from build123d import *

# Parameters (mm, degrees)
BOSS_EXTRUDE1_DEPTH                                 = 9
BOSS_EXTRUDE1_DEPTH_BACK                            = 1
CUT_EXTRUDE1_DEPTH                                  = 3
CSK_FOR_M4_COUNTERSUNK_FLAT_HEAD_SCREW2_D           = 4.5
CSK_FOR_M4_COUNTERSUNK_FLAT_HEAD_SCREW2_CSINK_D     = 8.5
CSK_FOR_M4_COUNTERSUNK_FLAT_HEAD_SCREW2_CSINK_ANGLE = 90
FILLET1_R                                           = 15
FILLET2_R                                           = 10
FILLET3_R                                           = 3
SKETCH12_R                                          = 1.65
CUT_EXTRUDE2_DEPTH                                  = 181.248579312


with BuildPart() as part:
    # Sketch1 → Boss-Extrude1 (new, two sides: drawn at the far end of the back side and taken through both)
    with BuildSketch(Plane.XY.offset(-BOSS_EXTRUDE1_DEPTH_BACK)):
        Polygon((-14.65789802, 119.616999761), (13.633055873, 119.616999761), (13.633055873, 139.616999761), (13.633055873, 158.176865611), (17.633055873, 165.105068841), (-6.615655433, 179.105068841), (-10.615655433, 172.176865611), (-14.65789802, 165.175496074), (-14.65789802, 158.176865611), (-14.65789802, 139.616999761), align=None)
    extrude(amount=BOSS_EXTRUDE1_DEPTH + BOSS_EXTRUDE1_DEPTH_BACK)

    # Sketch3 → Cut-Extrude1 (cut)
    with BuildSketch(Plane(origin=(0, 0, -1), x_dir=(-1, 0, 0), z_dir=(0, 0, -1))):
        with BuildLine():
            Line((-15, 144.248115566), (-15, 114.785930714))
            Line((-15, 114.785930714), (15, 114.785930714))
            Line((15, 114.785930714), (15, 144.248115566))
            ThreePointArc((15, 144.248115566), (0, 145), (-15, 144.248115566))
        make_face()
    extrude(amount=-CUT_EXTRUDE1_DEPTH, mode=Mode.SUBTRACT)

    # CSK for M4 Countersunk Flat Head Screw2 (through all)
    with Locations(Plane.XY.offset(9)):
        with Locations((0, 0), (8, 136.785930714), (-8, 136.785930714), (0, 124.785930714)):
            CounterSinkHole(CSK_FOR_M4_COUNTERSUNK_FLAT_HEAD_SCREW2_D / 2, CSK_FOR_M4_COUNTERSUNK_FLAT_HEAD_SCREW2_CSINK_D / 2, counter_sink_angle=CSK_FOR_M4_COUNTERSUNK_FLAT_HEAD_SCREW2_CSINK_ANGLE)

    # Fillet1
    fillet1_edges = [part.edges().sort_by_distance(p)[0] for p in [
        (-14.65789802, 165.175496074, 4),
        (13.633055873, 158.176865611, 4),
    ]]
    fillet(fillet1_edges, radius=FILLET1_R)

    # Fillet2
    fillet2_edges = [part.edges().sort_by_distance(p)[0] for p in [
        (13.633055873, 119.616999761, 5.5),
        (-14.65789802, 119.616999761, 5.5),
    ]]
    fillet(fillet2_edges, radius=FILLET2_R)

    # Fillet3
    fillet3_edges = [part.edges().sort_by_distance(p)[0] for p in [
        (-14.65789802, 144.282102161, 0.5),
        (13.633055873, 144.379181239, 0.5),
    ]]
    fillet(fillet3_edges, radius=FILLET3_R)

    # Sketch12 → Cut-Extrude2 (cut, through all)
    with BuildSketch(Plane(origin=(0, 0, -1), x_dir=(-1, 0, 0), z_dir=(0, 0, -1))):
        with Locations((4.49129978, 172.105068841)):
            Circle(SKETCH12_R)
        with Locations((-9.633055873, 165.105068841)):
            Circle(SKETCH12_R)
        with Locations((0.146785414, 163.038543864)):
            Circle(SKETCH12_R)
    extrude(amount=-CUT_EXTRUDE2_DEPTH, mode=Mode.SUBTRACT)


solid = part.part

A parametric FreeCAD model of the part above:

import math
import FreeCAD as App
import Part
import Sketcher

V = App.Vector
Q = App.Units.Quantity


def edges_at(feature, points):
    """Names of the edges that pass closest to the given points."""
    edges = feature.Shape.Edges
    near = lambda p: min(range(len(edges)), key=lambda i: edges[i].distToShape(Part.Vertex(*p))[0])
    return sorted({f"Edge{near(p) + 1}" for p in points})


def add_polygon(sketch, points):
    """Adds a closed chain of lines whose ends are joined by coincident constraints."""
    first, n = sketch.GeometryCount, len(points)
    for a, b in zip(points, points[1:] + points[:1]):
        sketch.addGeometry(Part.LineSegment(App.Vector(*a, 0), App.Vector(*b, 0)), False)
    for i in range(n):
        sketch.addConstraint(Sketcher.Constraint("Coincident", first + i, 2, first + (i + 1) % n, 1))

doc = App.newDocument("Part")
body = doc.addObject("PartDesign::Body", "Body")

# Sketch on XY plane
sketch1 = body.newObject("Sketcher::SketchObject", "Sketch")
sketch1.AttachmentSupport = (doc.getObject("XY_Plane"), [""])
sketch1.MapMode = "FlatFace"
add_polygon(sketch1, [(-14.657898, 119.617), (13.633056, 119.617), (13.633056, 158.176866), (17.633056, 165.105069), (-6.615655, 179.105069), (-10.615655, 172.176866), (-14.657898, 165.175496)])  # lines 0-6
sketch1.addConstraint(Sketcher.Constraint("Horizontal", 0))
sketch1.addConstraint(Sketcher.Constraint("Vertical", 1))
sketch1.addConstraint(Sketcher.Constraint("Vertical", 6))
sketch1.addConstraint(Sketcher.Constraint("Perpendicular", 2, 3))
sketch1.addConstraint(Sketcher.Constraint("Perpendicular", 3, 4))
sketch1.addConstraint(Sketcher.Constraint("Parallel", 4, 5))
sketch1.addConstraint(Sketcher.Constraint("Equal", 2, 4))
sketch1.addConstraint(Sketcher.Constraint("Angle", 2, Q("60 deg")))
sketch1.addConstraint(Sketcher.Constraint("Distance", 2, Q("8 mm")))
sketch1.addConstraint(Sketcher.Constraint("Distance", 3, Q("28 mm")))
sketch1.addConstraint(Sketcher.Constraint("DistanceY", -1, 1, 0, 2, Q("119.617 mm")))
sketch1.addConstraint(Sketcher.Constraint("DistanceX", 5, 2, -1, 1, Q("14.657898 mm")))
sketch1.addConstraint(Sketcher.Constraint("DistanceX", 0, 1, 0, 2, Q("28.290954 mm")))
sketch1.addConstraint(Sketcher.Constraint("DistanceY", 1, 1, 1, 2, Q("38.559866 mm")))
pad1 = body.newObject("PartDesign::Pad", "Pad")
pad1.Profile = sketch1
pad1.Type = "TwoLengths"
pad1.Length = 9
pad1.Length2 = 1

# Sketch on XY plane
sketch2 = body.newObject("Sketcher::SketchObject", "Sketch001")
sketch2.AttachmentSupport = (doc.getObject("XY_Plane"), [""])
sketch2.MapMode = "FlatFace"
sketch2.AttachmentOffset = App.Placement(V(0, 0, -1), App.Rotation())
sketch2.addGeometry(Part.LineSegment(V(15, 144.248116, 0), V(15, 114.785931, 0)), False)
sketch2.addGeometry(Part.LineSegment(V(15, 114.785931, 0), V(-15, 114.785931, 0)), False)
sketch2.addGeometry(Part.LineSegment(V(-15, 114.785931, 0), V(-15, 144.248116, 0)), False)
sketch2.addGeometry(Part.ArcOfCircle(Part.Circle(V(0, -5, 0), V(0, 0, 1), 150), math.radians(84.26083), math.radians(95.73917)), False)
sketch2.addConstraint(Sketcher.Constraint("Coincident", 0, 2, 1, 1))
sketch2.addConstraint(Sketcher.Constraint("Coincident", 1, 2, 2, 1))
sketch2.addConstraint(Sketcher.Constraint("Coincident", 2, 2, 3, 2))
sketch2.addConstraint(Sketcher.Constraint("Coincident", 3, 1, 0, 1))
sketch2.addConstraint(Sketcher.Constraint("Vertical", 0))
sketch2.addConstraint(Sketcher.Constraint("Horizontal", 1))
sketch2.addConstraint(Sketcher.Constraint("Vertical", 2))
sketch2.addConstraint(Sketcher.Constraint("Symmetric", 2, 2, 3, 1, -2))
sketch2.addConstraint(Sketcher.Constraint("Radius", 3, Q("150 mm")))
sketch2.addConstraint(Sketcher.Constraint("DistanceX", 1, 2, 1, 1, Q("30 mm")))
sketch2.addConstraint(Sketcher.Constraint("DistanceY", 3, 3, -1, 1, Q("5 mm")))
sketch2.addConstraint(Sketcher.Constraint("DistanceY", 0, 2, 0, 1, Q("29.462185 mm")))
pocket1 = body.newObject("PartDesign::Pocket", "Pocket")
pocket1.Profile = sketch2
pocket1.Length = 3
pocket1.Reversed = True

# Sketch on XY plane
sketch3 = body.newObject("Sketcher::SketchObject", "Sketch002")
sketch3.AttachmentSupport = (doc.getObject("XY_Plane"), [""])
sketch3.MapMode = "FlatFace"
sketch3.AttachmentOffset = App.Placement(V(0, 0, 9), App.Rotation())
sketch3.addGeometry(Part.Circle(V(0, 0, 0), V(0, 0, 1), 2.25), False)
sketch3.addGeometry(Part.Circle(V(8, 136.785931, 0), V(0, 0, 1), 2.25), False)
sketch3.addGeometry(Part.Circle(V(-8, 136.785931, 0), V(0, 0, 1), 2.25), False)
sketch3.addGeometry(Part.Circle(V(0, 124.785931, 0), V(0, 0, 1), 2.25), False)
sketch3.addConstraint(Sketcher.Constraint("Coincident", 0, 3, -1, 1))
sketch3.addConstraint(Sketcher.Constraint("Equal", 0, 1))
sketch3.addConstraint(Sketcher.Constraint("Equal", 1, 2))
sketch3.addConstraint(Sketcher.Constraint("Equal", 2, 3))
sketch3.addConstraint(Sketcher.Constraint("Symmetric", 1, 3, 2, 3, -2))
sketch3.addConstraint(Sketcher.Constraint("PointOnObject", 3, 3, -2))
sketch3.addConstraint(Sketcher.Constraint("Diameter", 0, Q("4.5 mm")))
sketch3.addConstraint(Sketcher.Constraint("DistanceX", -1, 1, 1, 3, Q("8 mm")))
sketch3.addConstraint(Sketcher.Constraint("DistanceY", 3, 3, 1, 3, Q("12 mm")))
sketch3.addConstraint(Sketcher.Constraint("DistanceY", -1, 1, 1, 3, Q("136.785931 mm")))
doc.recompute()
hole = body.newObject("PartDesign::Hole", "Hole")
hole.Profile = sketch3
hole.ThreadType = "None"
hole.Diameter = 4.5
hole.DepthType = "ThroughAll"
hole.HoleCutType = "Countersink"
hole.HoleCutDiameter = 8.5
hole.HoleCutCountersinkAngle = 90
doc.recompute()

fillet = body.newObject("PartDesign::Fillet", "Fillet")
fillet.Base = (hole, edges_at(hole, [(-14.658, 165.175, 4), (13.633, 158.177, 4)]))
fillet.Radius = 15
doc.recompute()

fillet2 = body.newObject("PartDesign::Fillet", "Fillet001")
fillet2.Base = (fillet, edges_at(fillet, [(13.633, 119.617, 5.5), (-14.658, 119.617, 5.5)]))
fillet2.Radius = 10
doc.recompute()

fillet3 = body.newObject("PartDesign::Fillet", "Fillet002")
fillet3.Base = (fillet2, edges_at(fillet2, [(-14.658, 144.282, 0.5), (13.633, 144.379, 0.5)]))
fillet3.Radius = 3

# Sketch on XY plane
sketch4 = body.newObject("Sketcher::SketchObject", "Sketch003")
sketch4.AttachmentSupport = (doc.getObject("XY_Plane"), [""])
sketch4.MapMode = "FlatFace"
sketch4.AttachmentOffset = App.Placement(V(0, 0, -1), App.Rotation())
sketch4.addGeometry(Part.Circle(V(-4.4913, 172.105069, 0), V(0, 0, 1), 1.65), False)
sketch4.addGeometry(Part.Circle(V(9.633056, 165.105069, 0), V(0, 0, 1), 1.65), False)
sketch4.addGeometry(Part.Circle(V(-0.146785, 163.038544, 0), V(0, 0, 1), 1.65), False)
sketch4.addConstraint(Sketcher.Constraint("Equal", 0, 1))
sketch4.addConstraint(Sketcher.Constraint("Equal", 1, 2))
sketch4.addConstraint(Sketcher.Constraint("Diameter", 0, Q("3.3 mm")))
sketch4.addConstraint(Sketcher.Constraint("DistanceY", 1, 3, 0, 3, Q("7 mm")))
sketch4.addConstraint(Sketcher.Constraint("DistanceX", 0, 3, -1, 1, Q("4.4913 mm")))
sketch4.addConstraint(Sketcher.Constraint("DistanceY", -1, 1, 0, 3, Q("172.105069 mm")))
sketch4.addConstraint(Sketcher.Constraint("DistanceX", 2, 3, 1, 3, Q("9.779841 mm")))
sketch4.addConstraint(Sketcher.Constraint("DistanceX", -1, 1, 1, 3, Q("9.633056 mm")))
sketch4.addConstraint(Sketcher.Constraint("DistanceY", -1, 1, 2, 3, Q("163.038544 mm")))
pocket2 = body.newObject("PartDesign::Pocket", "Pocket001")
pocket2.Profile = sketch4
pocket2.Type = "ThroughAll"
pocket2.Reversed = True

doc.recompute()
